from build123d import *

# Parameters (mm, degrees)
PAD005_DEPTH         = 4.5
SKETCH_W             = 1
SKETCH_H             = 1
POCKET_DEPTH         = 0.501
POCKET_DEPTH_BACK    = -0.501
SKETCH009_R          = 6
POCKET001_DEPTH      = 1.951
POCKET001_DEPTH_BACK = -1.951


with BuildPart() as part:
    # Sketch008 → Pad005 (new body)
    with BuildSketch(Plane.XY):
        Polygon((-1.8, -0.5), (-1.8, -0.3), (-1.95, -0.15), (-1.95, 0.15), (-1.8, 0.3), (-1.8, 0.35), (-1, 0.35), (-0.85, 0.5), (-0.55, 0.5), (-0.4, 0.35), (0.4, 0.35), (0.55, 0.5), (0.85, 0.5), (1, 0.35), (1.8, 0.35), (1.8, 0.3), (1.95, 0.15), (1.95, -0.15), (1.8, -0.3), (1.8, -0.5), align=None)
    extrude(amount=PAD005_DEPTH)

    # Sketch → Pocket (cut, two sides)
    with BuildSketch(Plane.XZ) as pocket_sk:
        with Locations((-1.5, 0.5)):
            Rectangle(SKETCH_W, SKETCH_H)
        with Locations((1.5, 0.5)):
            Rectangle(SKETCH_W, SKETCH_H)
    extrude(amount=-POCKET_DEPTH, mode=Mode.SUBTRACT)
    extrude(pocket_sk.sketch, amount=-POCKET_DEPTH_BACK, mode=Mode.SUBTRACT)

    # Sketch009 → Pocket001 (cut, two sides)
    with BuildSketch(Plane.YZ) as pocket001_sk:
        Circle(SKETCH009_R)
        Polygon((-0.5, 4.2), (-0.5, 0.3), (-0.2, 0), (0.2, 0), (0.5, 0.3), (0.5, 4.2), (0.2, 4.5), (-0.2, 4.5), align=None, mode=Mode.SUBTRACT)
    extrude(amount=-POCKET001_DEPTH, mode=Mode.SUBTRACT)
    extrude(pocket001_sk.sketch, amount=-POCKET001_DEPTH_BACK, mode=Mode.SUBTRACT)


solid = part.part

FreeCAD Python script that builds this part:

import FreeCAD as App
import Part
import Sketcher
from FreeCAD import Vector
Q = App.Units.Quantity


def add_polygon(sketch, points):
    """Adds a closed chain of lines whose ends are joined by coincident constraints."""
    first, n = sketch.GeometryCount, len(points)
    for a, b in zip(points, points[1:] + points[:1]):
        sketch.addGeometry(Part.LineSegment(App.Vector(*a, 0), App.Vector(*b, 0)), False)
    for i in range(n):
        sketch.addConstraint(Sketcher.Constraint("Coincident", first + i, 2, first + (i + 1) % n, 1))

doc = App.newDocument("Part")
body = doc.addObject("PartDesign::Body", "Body")

# Sketch on XY plane
sketch1 = body.newObject("Sketcher::SketchObject", "Sketch")
sketch1.AttachmentSupport = (doc.getObject("XY_Plane"), [""])
sketch1.MapMode = "FlatFace"
add_polygon(sketch1, [(-1.8, -0.3), (-1.8, -0.5), (1.8, -0.5), (1.8, -0.3), (1.95, -0.15), (1.95, 0.15), (1.8, 0.3), (1.8, 0.35), (1, 0.35), (0.85, 0.5), (0.55, 0.5), (0.4, 0.35), (-0.4, 0.35), (-0.55, 0.5), (-0.85, 0.5), (-1, 0.35), (-1.8, 0.35), (-1.8, 0.3), (-1.95, 0.15), (-1.95, -0.15)])  # lines 0-19
sketch1.addConstraint(Sketcher.Constraint("Vertical", 0))
sketch1.addConstraint(Sketcher.Constraint("Horizontal", 1))
sketch1.addConstraint(Sketcher.Constraint("Vertical", 2))
sketch1.addConstraint(Sketcher.Constraint("Vertical", 4))
sketch1.addConstraint(Sketcher.Constraint("Vertical", 6))
sketch1.addConstraint(Sketcher.Constraint("Horizontal", 7))
sketch1.addConstraint(Sketcher.Constraint("Horizontal", 9))
sketch1.addConstraint(Sketcher.Constraint("Horizontal", 11))
sketch1.addConstraint(Sketcher.Constraint("Horizontal", 13))
sketch1.addConstraint(Sketcher.Constraint("Horizontal", 15))
sketch1.addConstraint(Sketcher.Constraint("Vertical", 16))
sketch1.addConstraint(Sketcher.Constraint("Vertical", 18))
sketch1.addConstraint(Sketcher.Constraint("Symmetric", 2, 2, 16, 2, -1, 1))
sketch1.addConstraint(Sketcher.Constraint("Symmetric", 3, 2, 17, 2, -1, 1))
sketch1.addConstraint(Sketcher.Constraint("Symmetric", 5, 2, 19, 2, -1, 1))
sketch1.addConstraint(Sketcher.Constraint("Symmetric", 9, 2, 12, 2, -2))
sketch1.addConstraint(Sketcher.Constraint("Symmetric", 7, 2, 14, 2, -2))
sketch1.addConstraint(Sketcher.Constraint("Symmetric", 5, 2, 16, 2, -2))
sketch1.addConstraint(Sketcher.Constraint("Perpendicular", 3, 5))
sketch1.addConstraint(Sketcher.Constraint("Parallel", 5, 8))
sketch1.addConstraint(Sketcher.Constraint("Perpendicular", 8, 10))
sketch1.addConstraint(Sketcher.Constraint("Perpendicular", 10, 12))
sketch1.addConstraint(Sketcher.Constraint("Perpendicular", 12, 14))
sketch1.addConstraint(Sketcher.Constraint("Perpendicular", 17, 19))
sketch1.addConstraint(Sketcher.Constraint("Horizontal", 7, 2, 10, 2))
sketch1.addConstraint(Sketcher.Constraint("Horizontal", 4, 2, 17, 2))
sketch1.addConstraint(Sketcher.Constraint("Equal", 7, 11))
sketch1.addConstraint(Sketcher.Constraint("Equal", 13, 4))
sketch1.addConstraint(Sketcher.Constraint("Equal", 5, 8))
sketch1.addConstraint(Sketcher.Constraint("DistanceX", 1, 1, 1, 2, Q("3.6 mm")))
sketch1.addConstraint(Sketcher.Constraint("DistanceX", 7, 2, 7, 1, Q("0.8 mm")))
sketch1.addConstraint(Sketcher.Constraint("DistanceX", 9, 2, 9, 1, Q("0.3 mm")))
sketch1.addConstraint(Sketcher.Constraint("DistanceY", 0, 2, 0, 1, Q("0.2 mm")))
sketch1.addConstraint(Sketcher.Constraint("DistanceY", 0, 2, 13, 2, Q("1 mm")))
pad1 = body.newObject("PartDesign::Pad", "Pad")
pad1.Profile = sketch1
pad1.Length = 4.5

# Sketch on XZ plane
sketch2 = body.newObject("Sketcher::SketchObject", "Sketch001")
sketch2.AttachmentSupport = (doc.getObject("XZ_Plane"), [""])
sketch2.MapMode = "FlatFace"
add_polygon(sketch2, [(-2, 1), (-2, 0), (-1, 0), (-1, 1)])  # lines 0-3
add_polygon(sketch2, [(1, 1), (1, 0), (2, 0), (2, 1)])  # lines 4-7
sketch2.addConstraint(Sketcher.Constraint("Vertical", 0))
sketch2.addConstraint(Sketcher.Constraint("Horizontal", 1))
sketch2.addConstraint(Sketcher.Constraint("Vertical", 2))
sketch2.addConstraint(Sketcher.Constraint("Horizontal", 3))
sketch2.addConstraint(Sketcher.Constraint("Vertical", 4))
sketch2.addConstraint(Sketcher.Constraint("Horizontal", 5))
sketch2.addConstraint(Sketcher.Constraint("Vertical", 6))
sketch2.addConstraint(Sketcher.Constraint("Horizontal", 7))
sketch2.addConstraint(Sketcher.Constraint("Symmetric", 1, 2, 4, 2, -1, 1))
sketch2.addConstraint(Sketcher.Constraint("Symmetric", 0, 2, 5, 2, -2))
sketch2.addConstraint(Sketcher.Constraint("Horizontal", 3, 2, 6, 2))
sketch2.addConstraint(Sketcher.Constraint("Equal", 7, 0))
sketch2.addConstraint(Sketcher.Constraint("DistanceX", 1, 1, 1, 2, Q("1 mm")))
sketch2.addConstraint(Sketcher.Constraint("DistanceX", 0, 2, -1, 1, Q("2 mm")))
pocket1 = body.newObject("PartDesign::Pocket", "Pocket")
pocket1.Profile = sketch2
pocket1.Type = "ThroughAll"
pocket1.Midplane = True

# Sketch on YZ plane
sketch3 = body.newObject("Sketcher::SketchObject", "Sketch002")
sketch3.AttachmentSupport = (doc.getObject("YZ_Plane"), [""])
sketch3.MapMode = "FlatFace"
sketch3.addGeometry(Part.Circle(Vector(0, 0, 0), Vector(0, 0, 1), 6), False)  # 0
add_polygon(sketch3, [(-0.5, 0.3), (-0.5, 4.2), (-0.2, 4.5), (0.2, 4.5), (0.5, 4.2), (0.5, 0.3), (0.2, 0), (-0.2, 0)])  # lines 1-8
sketch3.addConstraint(Sketcher.Constraint("Vertical", 1))
sketch3.addConstraint(Sketcher.Constraint("Horizontal", 3))
sketch3.addConstraint(Sketcher.Constraint("Vertical", 5))
sketch3.addConstraint(Sketcher.Constraint("Horizontal", 7))
sketch3.addConstraint(Sketcher.Constraint("Coincident", 0, 3, -1, 1))
sketch3.addConstraint(Sketcher.Constraint("Symmetric", 6, 2, 7, 2, -1, 1))
sketch3.addConstraint(Sketcher.Constraint("Symmetric", 1, 2, 4, 2, -2))
sketch3.addConstraint(Sketcher.Constraint("Perpendicular", 2, 4))
sketch3.addConstraint(Sketcher.Constraint("Perpendicular", 4, 6))
sketch3.addConstraint(Sketcher.Constraint("Perpendicular", 6, 8))
sketch3.addConstraint(Sketcher.Constraint("Horizontal", 5, 2, 8, 2))
sketch3.addConstraint(Sketcher.Constraint("Vertical", 3, 2, 6, 2))
sketch3.addConstraint(Sketcher.Constraint("Diameter", 0, Q("12 mm")))
sketch3.addConstraint(Sketcher.Constraint("DistanceX", 3, 1, 3, 2, Q("0.4 mm")))
sketch3.addConstraint(Sketcher.Constraint("DistanceY", 1, 1, 1, 2, Q("3.9 mm")))
sketch3.addConstraint(Sketcher.Constraint("DistanceX", 1, 2, 4, 2, Q("1 mm")))
pocket2 = body.newObject("PartDesign::Pocket", "Pocket001")
pocket2.Profile = sketch3
pocket2.Type = "ThroughAll"
pocket2.Midplane = True

doc.recompute()
